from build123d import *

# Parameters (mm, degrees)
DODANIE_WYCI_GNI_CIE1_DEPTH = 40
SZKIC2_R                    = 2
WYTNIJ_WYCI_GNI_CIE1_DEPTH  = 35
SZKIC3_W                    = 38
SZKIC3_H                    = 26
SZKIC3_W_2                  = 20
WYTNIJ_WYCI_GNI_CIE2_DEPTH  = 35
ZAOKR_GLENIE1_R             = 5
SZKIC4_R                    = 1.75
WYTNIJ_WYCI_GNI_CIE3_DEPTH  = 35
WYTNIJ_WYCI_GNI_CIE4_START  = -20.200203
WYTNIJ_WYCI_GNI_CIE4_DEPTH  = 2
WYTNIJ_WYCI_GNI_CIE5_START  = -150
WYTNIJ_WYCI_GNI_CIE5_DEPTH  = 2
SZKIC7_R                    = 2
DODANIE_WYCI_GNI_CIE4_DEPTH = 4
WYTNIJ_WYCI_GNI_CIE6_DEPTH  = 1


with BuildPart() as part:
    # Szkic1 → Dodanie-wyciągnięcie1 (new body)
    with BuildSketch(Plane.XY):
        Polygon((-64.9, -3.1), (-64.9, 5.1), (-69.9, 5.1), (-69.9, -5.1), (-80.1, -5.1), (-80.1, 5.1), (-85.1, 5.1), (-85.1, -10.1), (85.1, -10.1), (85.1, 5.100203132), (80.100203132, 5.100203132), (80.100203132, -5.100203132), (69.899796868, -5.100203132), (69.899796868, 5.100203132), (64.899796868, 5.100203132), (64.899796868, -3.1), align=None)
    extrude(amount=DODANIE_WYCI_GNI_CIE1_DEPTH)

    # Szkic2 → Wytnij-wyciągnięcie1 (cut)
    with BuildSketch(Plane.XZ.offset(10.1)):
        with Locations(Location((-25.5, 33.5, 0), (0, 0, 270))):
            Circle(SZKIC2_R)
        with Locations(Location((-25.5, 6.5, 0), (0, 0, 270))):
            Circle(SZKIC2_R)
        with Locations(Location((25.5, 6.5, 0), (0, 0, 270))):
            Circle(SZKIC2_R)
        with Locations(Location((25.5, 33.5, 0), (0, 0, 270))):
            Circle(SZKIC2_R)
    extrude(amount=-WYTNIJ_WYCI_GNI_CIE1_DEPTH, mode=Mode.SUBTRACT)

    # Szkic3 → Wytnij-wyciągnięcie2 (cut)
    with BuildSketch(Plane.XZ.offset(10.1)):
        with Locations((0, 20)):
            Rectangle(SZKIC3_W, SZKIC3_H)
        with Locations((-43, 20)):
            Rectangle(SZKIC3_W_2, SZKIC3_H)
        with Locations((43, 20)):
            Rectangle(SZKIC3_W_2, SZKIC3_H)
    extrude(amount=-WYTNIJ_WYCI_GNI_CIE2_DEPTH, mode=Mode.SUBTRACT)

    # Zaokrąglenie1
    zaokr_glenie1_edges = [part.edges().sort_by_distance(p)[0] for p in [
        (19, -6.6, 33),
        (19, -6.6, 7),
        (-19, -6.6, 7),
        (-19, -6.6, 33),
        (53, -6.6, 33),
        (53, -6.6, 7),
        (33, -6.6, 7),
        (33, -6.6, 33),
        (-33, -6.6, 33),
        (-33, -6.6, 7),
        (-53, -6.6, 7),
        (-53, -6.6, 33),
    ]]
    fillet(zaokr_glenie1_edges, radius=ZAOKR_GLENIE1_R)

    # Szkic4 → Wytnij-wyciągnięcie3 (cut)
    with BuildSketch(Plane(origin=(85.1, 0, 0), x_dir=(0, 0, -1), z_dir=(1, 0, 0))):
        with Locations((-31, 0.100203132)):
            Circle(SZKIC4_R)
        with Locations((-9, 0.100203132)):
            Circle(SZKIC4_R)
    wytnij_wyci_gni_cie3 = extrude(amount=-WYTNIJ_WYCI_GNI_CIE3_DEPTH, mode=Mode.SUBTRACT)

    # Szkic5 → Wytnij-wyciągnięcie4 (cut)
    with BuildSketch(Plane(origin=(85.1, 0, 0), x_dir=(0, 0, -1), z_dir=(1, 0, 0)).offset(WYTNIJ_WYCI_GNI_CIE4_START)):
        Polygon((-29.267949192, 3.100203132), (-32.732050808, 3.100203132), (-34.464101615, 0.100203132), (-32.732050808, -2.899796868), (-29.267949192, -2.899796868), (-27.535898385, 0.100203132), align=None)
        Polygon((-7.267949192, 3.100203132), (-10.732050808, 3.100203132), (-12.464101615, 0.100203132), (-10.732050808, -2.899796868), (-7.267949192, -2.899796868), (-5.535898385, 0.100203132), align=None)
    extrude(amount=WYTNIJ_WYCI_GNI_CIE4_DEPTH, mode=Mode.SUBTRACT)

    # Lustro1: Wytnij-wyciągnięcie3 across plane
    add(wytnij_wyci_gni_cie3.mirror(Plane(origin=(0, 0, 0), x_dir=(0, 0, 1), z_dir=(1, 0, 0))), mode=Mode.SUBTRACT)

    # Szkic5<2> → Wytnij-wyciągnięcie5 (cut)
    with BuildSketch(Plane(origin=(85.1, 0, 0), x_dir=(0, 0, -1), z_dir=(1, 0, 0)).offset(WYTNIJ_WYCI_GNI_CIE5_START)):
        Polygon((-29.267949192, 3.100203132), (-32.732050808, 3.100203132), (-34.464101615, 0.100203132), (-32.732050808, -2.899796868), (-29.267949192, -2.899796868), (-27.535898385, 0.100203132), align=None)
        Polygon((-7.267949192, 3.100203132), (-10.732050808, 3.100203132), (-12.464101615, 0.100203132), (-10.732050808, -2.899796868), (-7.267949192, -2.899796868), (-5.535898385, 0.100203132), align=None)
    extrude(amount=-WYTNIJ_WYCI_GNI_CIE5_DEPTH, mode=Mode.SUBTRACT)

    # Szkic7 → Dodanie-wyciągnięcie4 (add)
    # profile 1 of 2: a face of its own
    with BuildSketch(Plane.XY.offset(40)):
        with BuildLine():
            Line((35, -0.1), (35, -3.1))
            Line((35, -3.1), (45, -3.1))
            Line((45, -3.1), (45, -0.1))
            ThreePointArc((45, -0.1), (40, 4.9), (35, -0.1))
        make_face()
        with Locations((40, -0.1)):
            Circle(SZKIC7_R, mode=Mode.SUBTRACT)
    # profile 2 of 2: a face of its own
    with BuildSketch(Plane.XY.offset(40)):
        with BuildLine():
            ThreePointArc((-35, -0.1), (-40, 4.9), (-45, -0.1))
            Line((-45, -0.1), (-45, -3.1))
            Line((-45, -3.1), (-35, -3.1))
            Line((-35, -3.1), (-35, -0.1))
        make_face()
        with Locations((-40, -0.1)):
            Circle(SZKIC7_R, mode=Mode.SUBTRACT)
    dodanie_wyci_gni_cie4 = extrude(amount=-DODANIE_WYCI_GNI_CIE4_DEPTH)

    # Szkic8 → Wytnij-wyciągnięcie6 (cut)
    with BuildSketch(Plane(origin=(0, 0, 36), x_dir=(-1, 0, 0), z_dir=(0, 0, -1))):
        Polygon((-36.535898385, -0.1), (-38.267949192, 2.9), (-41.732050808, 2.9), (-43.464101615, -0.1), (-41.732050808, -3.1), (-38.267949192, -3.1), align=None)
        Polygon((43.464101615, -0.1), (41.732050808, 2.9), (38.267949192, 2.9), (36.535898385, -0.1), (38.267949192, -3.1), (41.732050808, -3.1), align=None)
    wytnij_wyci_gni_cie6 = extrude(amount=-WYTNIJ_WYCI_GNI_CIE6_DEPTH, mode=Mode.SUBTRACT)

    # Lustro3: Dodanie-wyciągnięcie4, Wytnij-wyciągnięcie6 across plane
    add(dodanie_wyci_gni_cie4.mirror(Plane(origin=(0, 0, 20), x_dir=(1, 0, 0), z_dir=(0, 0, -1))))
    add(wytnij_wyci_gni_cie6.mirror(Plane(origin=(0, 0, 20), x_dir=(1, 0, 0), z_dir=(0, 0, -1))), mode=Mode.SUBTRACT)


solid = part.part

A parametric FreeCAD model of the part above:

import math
import FreeCAD as App
import Part
import Sketcher

V = App.Vector
Q = App.Units.Quantity


def edges_at(feature, points):
    """Names of the edges that pass closest to the given points."""
    edges = feature.Shape.Edges
    near = lambda p: min(range(len(edges)), key=lambda i: edges[i].distToShape(Part.Vertex(*p))[0])
    return sorted({f"Edge{near(p) + 1}" for p in points})

doc = App.newDocument("Part")
body = doc.addObject("PartDesign::Body", "Body")

sketch1 = body.newObject("Sketcher::SketchObject", "Sketch")
sketch1.AttachmentSupport = (doc.getObject("XY_Plane"), [""])
sketch1.MapMode = "FlatFace"
sketch1.addGeometry([
    Part.LineSegment(V(-64.9, -3.1, 0), V(-64.9, 5.1, 0)),
    Part.LineSegment(V(-64.9, 5.1, 0), V(-69.9, 5.1, 0)),
    Part.LineSegment(V(-69.9, 5.1, 0), V(-69.9, -5.1, 0)),
    Part.LineSegment(V(-69.9, -5.1, 0), V(-80.1, -5.1, 0)),
    Part.LineSegment(V(-80.1, -5.1, 0), V(-80.1, 5.1, 0)),
    Part.LineSegment(V(-80.1, 5.1, 0), V(-85.1, 5.1, 0)),
    Part.LineSegment(V(-85.1, 5.1, 0), V(-85.1, -10.1, 0)),
    Part.LineSegment(V(-85.1, -10.1, 0), V(85.1, -10.1, 0)),
    Part.LineSegment(V(85.1, -10.1, 0), V(85.1, 5.1, 0)),
    Part.LineSegment(V(85.1, 5.1, 0), V(80.1, 5.1, 0)),
    Part.LineSegment(V(80.1, 5.1, 0), V(80.1, -5.1, 0)),
    Part.LineSegment(V(80.1, -5.1, 0), V(69.9, -5.1, 0)),
    Part.LineSegment(V(69.9, -5.1, 0), V(69.9, 5.1, 0)),
    Part.LineSegment(V(69.9, 5.1, 0), V(64.9, 5.1, 0)),
    Part.LineSegment(V(64.9, 5.1, 0), V(64.9, -3.1, 0)),
    Part.LineSegment(V(64.9, -3.1, 0), V(-64.9, -3.1, 0)),
], False)
sketch1.addConstraint([
    Sketcher.Constraint("Coincident", 0, 2, 1, 1),
    Sketcher.Constraint("Coincident", 1, 2, 2, 1),
    Sketcher.Constraint("Coincident", 2, 2, 3, 1),
    Sketcher.Constraint("Coincident", 3, 2, 4, 1),
    Sketcher.Constraint("Coincident", 4, 2, 5, 1),
    Sketcher.Constraint("Coincident", 5, 2, 6, 1),
    Sketcher.Constraint("Coincident", 6, 2, 7, 1),
    Sketcher.Constraint("Coincident", 7, 2, 8, 1),
    Sketcher.Constraint("Coincident", 8, 2, 9, 1),
    Sketcher.Constraint("Coincident", 9, 2, 10, 1),
    Sketcher.Constraint("Coincident", 10, 2, 11, 1),
    Sketcher.Constraint("Coincident", 11, 2, 12, 1),
    Sketcher.Constraint("Coincident", 12, 2, 13, 1),
    Sketcher.Constraint("Coincident", 13, 2, 14, 1),
    Sketcher.Constraint("Coincident", 14, 2, 15, 1),
    Sketcher.Constraint("Coincident", 15, 2, 0, 1),
    Sketcher.Constraint("Vertical", 0),
    Sketcher.Constraint("Horizontal", 1),
    Sketcher.Constraint("Vertical", 2),
    Sketcher.Constraint("Horizontal", 3),
    Sketcher.Constraint("Vertical", 4),
    Sketcher.Constraint("Horizontal", 5),
    Sketcher.Constraint("Vertical", 6),
    Sketcher.Constraint("Horizontal", 7),
    Sketcher.Constraint("Vertical", 8),
    Sketcher.Constraint("Horizontal", 9),
    Sketcher.Constraint("Vertical", 10),
    Sketcher.Constraint("Horizontal", 11),
    Sketcher.Constraint("Vertical", 12),
    Sketcher.Constraint("Horizontal", 13),
    Sketcher.Constraint("Vertical", 14),
    Sketcher.Constraint("Horizontal", 15),
    Sketcher.Constraint("Horizontal", 1, 2, 4, 2),
    Sketcher.Constraint("Horizontal", 9, 2, 12, 2),
    Sketcher.Constraint("Equal", 1, 5),
    Sketcher.Constraint("Equal", 5, 13),
    Sketcher.Constraint("Equal", 3, 2),
    Sketcher.Constraint("Equal", 11, 10),
    Sketcher.Constraint("DistanceX", 1, 2, 1, 1, 5.0),
    Sketcher.Constraint("DistanceX", 3, 2, 3, 1, 10.2),
    Sketcher.Constraint("DistanceX", 7, 1, 7, 2, 170.2),
    Sketcher.Constraint("DistanceY", 0, 1, 0, 2, 8.2),
    Sketcher.Constraint("DistanceY", 6, 2, 6, 1, 15.2),
    Sketcher.Constraint("DistanceX", 0, 2, -1, 1, 64.9),
    Sketcher.Constraint("DistanceY", -1, 1, 0, 2, 5.1),
    Sketcher.Constraint("DistanceX", 9, 2, 9, 1, 4.999797),
    Sketcher.Constraint("DistanceX", 11, 2, 11, 1, 10.200406),
    Sketcher.Constraint("DistanceY", 8, 1, 8, 2, 15.200203),
])
pad1 = body.newObject("PartDesign::Pad", "Pad")
pad1.Profile = sketch1
pad1.Length = 40

sketch2 = body.newObject("Sketcher::SketchObject", "Sketch001")
sketch2.AttachmentSupport = (doc.getObject("XZ_Plane"), [""])
sketch2.MapMode = "FlatFace"
sketch2.AttachmentOffset = App.Placement(V(0, 0, 10.1), App.Rotation())
sketch2.addGeometry([
    Part.Circle(V(-25.5, 33.5, 0), V(0, 0, 1), 2),
    Part.Circle(V(-25.5, 6.5, 0), V(0, 0, 1), 2),
    Part.Circle(V(25.5, 6.5, 0), V(0, 0, 1), 2),
    Part.Circle(V(25.5, 33.5, 0), V(0, 0, 1), 2),
], False)
sketch2.addConstraint([
    Sketcher.Constraint("Equal", 0, 1),
    Sketcher.Constraint("Equal", 1, 2),
    Sketcher.Constraint("Equal", 2, 3),
    Sketcher.Constraint("Symmetric", 1, 3, 2, 3, -2),
    Sketcher.Constraint("Symmetric", 0, 3, 3, 3, -2),
    Sketcher.Constraint("Vertical", 0, 3, 1, 3),
    Sketcher.Constraint("Diameter", 0, 4.0),
    Sketcher.Constraint("DistanceY", 1, 3, 0, 3, 27.0),
    Sketcher.Constraint("DistanceX", 1, 3, 2, 3, 51.0),
    Sketcher.Constraint("DistanceY", -1, 1, 0, 3, 33.5),
])
pocket1 = body.newObject("PartDesign::Pocket", "Pocket")
pocket1.Profile = sketch2
pocket1.Length = 35

sketch3 = body.newObject("Sketcher::SketchObject", "Sketch002")
sketch3.AttachmentSupport = (doc.getObject("XZ_Plane"), [""])
sketch3.MapMode = "FlatFace"
sketch3.AttachmentOffset = App.Placement(V(0, 0, 10.1), App.Rotation())
sketch3.addGeometry([
    Part.LineSegment(V(-19, 33, 0), V(-19, 7, 0)),
    Part.LineSegment(V(-19, 7, 0), V(19, 7, 0)),
    Part.LineSegment(V(19, 7, 0), V(19, 33, 0)),
    Part.LineSegment(V(19, 33, 0), V(-19, 33, 0)),
    Part.LineSegment(V(-53, 33, 0), V(-53, 7, 0)),
    Part.LineSegment(V(-53, 7, 0), V(-33, 7, 0)),
    Part.LineSegment(V(-33, 7, 0), V(-33, 33, 0)),
    Part.LineSegment(V(-33, 33, 0), V(-53, 33, 0)),
    Part.LineSegment(V(33, 33, 0), V(33, 7, 0)),
    Part.LineSegment(V(33, 7, 0), V(53, 7, 0)),
    Part.LineSegment(V(53, 7, 0), V(53, 33, 0)),
    Part.LineSegment(V(53, 33, 0), V(33, 33, 0)),
], False)
sketch3.addConstraint([
    Sketcher.Constraint("Coincident", 0, 2, 1, 1),
    Sketcher.Constraint("Coincident", 1, 2, 2, 1),
    Sketcher.Constraint("Coincident", 2, 2, 3, 1),
    Sketcher.Constraint("Coincident", 3, 2, 0, 1),
    Sketcher.Constraint("Coincident", 4, 2, 5, 1),
    Sketcher.Constraint("Coincident", 5, 2, 6, 1),
    Sketcher.Constraint("Coincident", 6, 2, 7, 1),
    Sketcher.Constraint("Coincident", 7, 2, 4, 1),
    Sketcher.Constraint("Coincident", 8, 2, 9, 1),
    Sketcher.Constraint("Coincident", 9, 2, 10, 1),
    Sketcher.Constraint("Coincident", 10, 2, 11, 1),
    Sketcher.Constraint("Coincident", 11, 2, 8, 1),
    Sketcher.Constraint("Vertical", 0),
    Sketcher.Constraint("Horizontal", 1),
    Sketcher.Constraint("Vertical", 2),
    Sketcher.Constraint("Horizontal", 3),
    Sketcher.Constraint("Vertical", 4),
    Sketcher.Constraint("Horizontal", 5),
    Sketcher.Constraint("Vertical", 6),
    Sketcher.Constraint("Horizontal", 7),
    Sketcher.Constraint("Vertical", 8),
    Sketcher.Constraint("Horizontal", 9),
    Sketcher.Constraint("Vertical", 10),
    Sketcher.Constraint("Horizontal", 11),
    Sketcher.Constraint("Symmetric", 5, 2, 8, 2, -2),
    Sketcher.Constraint("Symmetric", 7, 2, 10, 2, -2),
    Sketcher.Constraint("Horizontal", 1, 2, 4, 2),
    Sketcher.Constraint("Horizontal", 3, 2, 6, 2),
    Sketcher.Constraint("DistanceX", 1, 1, 1, 2, 38.0),
    Sketcher.Constraint("DistanceX", 5, 1, 5, 2, 20.0),
    Sketcher.Constraint("DistanceY", 0, 2, 0, 1, 26.0),
    Sketcher.Constraint("DistanceX", 0, 2, -1, 1, 19.0),
    Sketcher.Constraint("DistanceY", -1, 1, 0, 2, 7.0),
    Sketcher.Constraint("DistanceX", 4, 2, -1, 1, 53.0),
])
pocket2 = body.newObject("PartDesign::Pocket", "Pocket001")
pocket2.Profile = sketch3
pocket2.Length = 35
doc.recompute()

fillet = body.newObject("PartDesign::Fillet", "Fillet")
fillet.Base = (pocket2, edges_at(pocket2, [
    (19, -6.6, 33),
    (19, -6.6, 7),
    (-19, -6.6, 7),
    (-19, -6.6, 33),
    (53, -6.6, 33),
    (53, -6.6, 7),
    (33, -6.6, 7),
    (33, -6.6, 33),
    (-33, -6.6, 33),
    (-33, -6.6, 7),
    (-53, -6.6, 7),
    (-53, -6.6, 33),
]))
fillet.Radius = 5

sketch4 = body.newObject("Sketcher::SketchObject", "Sketch003")
sketch4.AttachmentSupport = (doc.getObject("YZ_Plane"), [""])
sketch4.MapMode = "FlatFace"
sketch4.AttachmentOffset = App.Placement(V(0, 0, 85.1), App.Rotation())
sketch4.addGeometry([
    Part.Circle(V(0.1, 31, 0), V(0, 0, 1), 1.8),
    Part.Circle(V(0.1, 9, 0), V(0, 0, 1), 1.8),
], False)
sketch4.addConstraint([
    Sketcher.Constraint("Equal", 0, 1),
    Sketcher.Constraint("Vertical", 0, 3, 1, 3),
    Sketcher.Constraint("Diameter", 0, 3.5),
    Sketcher.Constraint("DistanceY", -1, 1, 0, 3, 31.0),
    Sketcher.Constraint("DistanceY", -1, 1, 1, 3, 9.0),
    Sketcher.Constraint("DistanceX", -1, 1, 0, 3, 0.100203),
])
pocket3 = body.newObject("PartDesign::Pocket", "Pocket002")
pocket3.Profile = sketch4
pocket3.Length = 35

sketch5 = body.newObject("Sketcher::SketchObject", "Sketch004")
sketch5.AttachmentSupport = (doc.getObject("YZ_Plane"), [""])
sketch5.MapMode = "FlatFace"
sketch5.AttachmentOffset = App.Placement(V(0, 0, 64.899797), App.Rotation())
sketch5.addGeometry([
    Part.LineSegment(V(3.1, 29.3, 0), V(3.1, 32.7, 0)),
    Part.LineSegment(V(3.1, 32.7, 0), V(0.1, 34.5, 0)),
    Part.LineSegment(V(0.1, 34.5, 0), V(-2.9, 32.7, 0)),
    Part.LineSegment(V(-2.9, 32.7, 0), V(-2.9, 29.3, 0)),
    Part.LineSegment(V(-2.9, 29.3, 0), V(0.1, 27.5, 0)),
    Part.LineSegment(V(0.1, 27.5, 0), V(3.1, 29.3, 0)),
    Part.LineSegment(V(3.1, 7.3, 0), V(3.1, 10.7, 0)),
    Part.LineSegment(V(3.1, 10.7, 0), V(0.1, 12.5, 0)),
    Part.LineSegment(V(0.1, 12.5, 0), V(-2.9, 10.7, 0)),
    Part.LineSegment(V(-2.9, 10.7, 0), V(-2.9, 7.3, 0)),
    Part.LineSegment(V(-2.9, 7.3, 0), V(0.1, 5.5, 0)),
    Part.LineSegment(V(0.1, 5.5, 0), V(3.1, 7.3, 0)),
], False)
sketch5.addConstraint([
    Sketcher.Constraint("Coincident", 0, 2, 1, 1),
    Sketcher.Constraint("Coincident", 1, 2, 2, 1),
    Sketcher.Constraint("Coincident", 2, 2, 3, 1),
    Sketcher.Constraint("Coincident", 3, 2, 4, 1),
    Sketcher.Constraint("Coincident", 4, 2, 5, 1),
    Sketcher.Constraint("Coincident", 5, 2, 0, 1),
    Sketcher.Constraint("Coincident", 6, 2, 7, 1),
    Sketcher.Constraint("Coincident", 7, 2, 8, 1),
    Sketcher.Constraint("Coincident", 8, 2, 9, 1),
    Sketcher.Constraint("Coincident", 9, 2, 10, 1),
    Sketcher.Constraint("Coincident", 10, 2, 11, 1),
    Sketcher.Constraint("Coincident", 11, 2, 6, 1),
    Sketcher.Constraint("Vertical", 0),
    Sketcher.Constraint("Vertical", 3),
    Sketcher.Constraint("Vertical", 6),
    Sketcher.Constraint("Vertical", 9),
    Sketcher.Constraint("Parallel", 1, 4),
    Sketcher.Constraint("Parallel", 2, 5),
    Sketcher.Constraint("Parallel", 4, 7),
    Sketcher.Constraint("Parallel", 5, 8),
    Sketcher.Constraint("Parallel", 7, 10),
    Sketcher.Constraint("Parallel", 8, 11),
    Sketcher.Constraint("Horizontal", 0, 2, 2, 2),
    Sketcher.Constraint("Horizontal", 3, 2, 5, 2),
    Sketcher.Constraint("Horizontal", 6, 2, 8, 2),
    Sketcher.Constraint("Horizontal", 9, 2, 11, 2),
    Sketcher.Constraint("Vertical", 1, 2, 4, 2),
    Sketcher.Constraint("Vertical", 5, 2, 6, 2),
    Sketcher.Constraint("Vertical", 4, 2, 7, 2),
    Sketcher.Constraint("Equal", 3, 6),
    Sketcher.Constraint("Angle", 1, Q("150 deg")),
    Sketcher.Constraint("DistanceX", 1, 2, 0, 2, 3.0),
    Sketcher.Constraint("DistanceY", 6, 2, 0, 2, 22.0),
    Sketcher.Constraint("DistanceY", 0, 1, 0, 2, 3.464102),
    Sketcher.Constraint("DistanceY", -1, 1, 1, 2, 34.464102),
    Sketcher.Constraint("DistanceX", -1, 1, 0, 2, 3.100203),
])
pocket4 = body.newObject("PartDesign::Pocket", "Pocket003")
pocket4.Profile = sketch5
pocket4.Length = 2
pocket4.Reversed = True
doc.recompute()

mirrored = body.newObject("PartDesign::Mirrored", "Mirrored")
mirrored.Originals = [pocket3]
mirrored.MirrorPlane = (doc.getObject("YZ_Plane"), [""])
body.Tip = mirrored

sketch6 = body.newObject("Sketcher::SketchObject", "Sketch005")
sketch6.AttachmentSupport = (doc.getObject("YZ_Plane"), [""])
sketch6.MapMode = "FlatFace"
sketch6.AttachmentOffset = App.Placement(V(0, 0, -64.9), App.Rotation())
sketch6.addGeometry([
    Part.LineSegment(V(3.1, 29.3, 0), V(3.1, 32.7, 0)),
    Part.LineSegment(V(3.1, 32.7, 0), V(0.1, 34.5, 0)),
    Part.LineSegment(V(0.1, 34.5, 0), V(-2.9, 32.7, 0)),
    Part.LineSegment(V(-2.9, 32.7, 0), V(-2.9, 29.3, 0)),
    Part.LineSegment(V(-2.9, 29.3, 0), V(0.1, 27.5, 0)),
    Part.LineSegment(V(0.1, 27.5, 0), V(3.1, 29.3, 0)),
    Part.LineSegment(V(3.1, 7.3, 0), V(3.1, 10.7, 0)),
    Part.LineSegment(V(3.1, 10.7, 0), V(0.1, 12.5, 0)),
    Part.LineSegment(V(0.1, 12.5, 0), V(-2.9, 10.7, 0)),
    Part.LineSegment(V(-2.9, 10.7, 0), V(-2.9, 7.3, 0)),
    Part.LineSegment(V(-2.9, 7.3, 0), V(0.1, 5.5, 0)),
    Part.LineSegment(V(0.1, 5.5, 0), V(3.1, 7.3, 0)),
], False)
sketch6.addConstraint([
    Sketcher.Constraint("Coincident", 0, 2, 1, 1),
    Sketcher.Constraint("Coincident", 1, 2, 2, 1),
    Sketcher.Constraint("Coincident", 2, 2, 3, 1),
    Sketcher.Constraint("Coincident", 3, 2, 4, 1),
    Sketcher.Constraint("Coincident", 4, 2, 5, 1),
    Sketcher.Constraint("Coincident", 5, 2, 0, 1),
    Sketcher.Constraint("Coincident", 6, 2, 7, 1),
    Sketcher.Constraint("Coincident", 7, 2, 8, 1),
    Sketcher.Constraint("Coincident", 8, 2, 9, 1),
    Sketcher.Constraint("Coincident", 9, 2, 10, 1),
    Sketcher.Constraint("Coincident", 10, 2, 11, 1),
    Sketcher.Constraint("Coincident", 11, 2, 6, 1),
    Sketcher.Constraint("Vertical", 0),
    Sketcher.Constraint("Vertical", 3),
    Sketcher.Constraint("Vertical", 6),
    Sketcher.Constraint("Vertical", 9),
    Sketcher.Constraint("Parallel", 1, 4),
    Sketcher.Constraint("Parallel", 2, 5),
    Sketcher.Constraint("Parallel", 4, 7),
    Sketcher.Constraint("Parallel", 5, 8),
    Sketcher.Constraint("Parallel", 7, 10),
    Sketcher.Constraint("Parallel", 8, 11),
    Sketcher.Constraint("Horizontal", 0, 2, 2, 2),
    Sketcher.Constraint("Horizontal", 3, 2, 5, 2),
    Sketcher.Constraint("Horizontal", 6, 2, 8, 2),
    Sketcher.Constraint("Horizontal", 9, 2, 11, 2),
    Sketcher.Constraint("Vertical", 1, 2, 4, 2),
    Sketcher.Constraint("Vertical", 5, 2, 6, 2),
    Sketcher.Constraint("Vertical", 4, 2, 7, 2),
    Sketcher.Constraint("Equal", 3, 6),
    Sketcher.Constraint("Angle", 1, Q("150 deg")),
    Sketcher.Constraint("DistanceX", 1, 2, 0, 2, 3.0),
    Sketcher.Constraint("DistanceY", 6, 2, 0, 2, 22.0),
    Sketcher.Constraint("DistanceY", 0, 1, 0, 2, 3.464102),
    Sketcher.Constraint("DistanceY", -1, 1, 1, 2, 34.464102),
    Sketcher.Constraint("DistanceX", -1, 1, 0, 2, 3.100203),
])
pocket5 = body.newObject("PartDesign::Pocket", "Pocket004")
pocket5.Profile = sketch6
pocket5.Length = 2

sketch7 = body.newObject("Sketcher::SketchObject", "Sketch006")
sketch7.AttachmentSupport = (doc.getObject("XY_Plane"), [""])
sketch7.MapMode = "FlatFace"
sketch7.AttachmentOffset = App.Placement(V(0, 0, 40), App.Rotation())
sketch7.addGeometry([
    Part.LineSegment(V(35, -0.1, 0), V(35, -3.1, 0)),
    Part.LineSegment(V(35, -3.1, 0), V(45, -3.1, 0)),
    Part.LineSegment(V(45, -3.1, 0), V(45, -0.1, 0)),
    Part.ArcOfCircle(Part.Circle(V(40, -0.1, 0), V(0, 0, 1), 5), math.radians(0), math.radians(180)),
    Part.Circle(V(40, -0.1, 0), V(0, 0, 1), 2),
    Part.ArcOfCircle(Part.Circle(V(-40, -0.1, 0), V(0, 0, 1), 5), math.radians(0), math.radians(180)),
    Part.LineSegment(V(-45, -0.1, 0), V(-45, -3.1, 0)),
    Part.LineSegment(V(-45, -3.1, 0), V(-35, -3.1, 0)),
    Part.LineSegment(V(-35, -3.1, 0), V(-35, -0.1, 0)),
    Part.Circle(V(-40, -0.1, 0), V(0, 0, 1), 2),
], False)
sketch7.addConstraint([
    Sketcher.Constraint("Coincident", 0, 2, 1, 1),
    Sketcher.Constraint("Coincident", 1, 2, 2, 1),
    Sketcher.Constraint("Tangent", 2, 2, 3, 1),
    Sketcher.Constraint("Tangent", 3, 2, 0, 1),
    Sketcher.Constraint("Tangent", 5, 2, 6, 1),
    Sketcher.Constraint("Coincident", 6, 2, 7, 1),
    Sketcher.Constraint("Coincident", 7, 2, 8, 1),
    Sketcher.Constraint("Tangent", 8, 2, 5, 1),
    Sketcher.Constraint("Vertical", 0),
    Sketcher.Constraint("Horizontal", 1),
    Sketcher.Constraint("Vertical", 2),
    Sketcher.Constraint("Vertical", 6),
    Sketcher.Constraint("Horizontal", 7),
    Sketcher.Constraint("Vertical", 8),
    Sketcher.Constraint("Coincident", 4, 3, 3, 3),
    Sketcher.Constraint("Coincident", 9, 3, 5, 3),
    Sketcher.Constraint("Equal", 3, 5),
    Sketcher.Constraint("Equal", 4, 9),
    Sketcher.Constraint("Symmetric", 3, 3, 5, 3, -2),
    Sketcher.Constraint("Horizontal", 1, 2, 6, 2),
    Sketcher.Constraint("Diameter", 4, 4.0),
    Sketcher.Constraint("Radius", 3, 5.0),
    Sketcher.Constraint("DistanceY", 0, 2, 0, 1, 3.0),
    Sketcher.Constraint("DistanceX", -1, 1, 3, 3, 40.0),
    Sketcher.Constraint("DistanceY", 3, 3, -1, 1, 0.1),
])
pad2 = body.newObject("PartDesign::Pad", "Pad001")
pad2.Profile = sketch7
pad2.Length = 4
pad2.Reversed = True

sketch8 = body.newObject("Sketcher::SketchObject", "Sketch007")
sketch8.AttachmentSupport = (doc.getObject("XY_Plane"), [""])
sketch8.MapMode = "FlatFace"
sketch8.AttachmentOffset = App.Placement(V(0, 0, 36), App.Rotation())
sketch8.addGeometry([
    Part.LineSegment(V(36.5, -0.1, 0), V(38.3, 2.9, 0)),
    Part.LineSegment(V(38.3, 2.9, 0), V(41.7, 2.9, 0)),
    Part.LineSegment(V(41.7, 2.9, 0), V(43.5, -0.1, 0)),
    Part.LineSegment(V(43.5, -0.1, 0), V(41.7, -3.1, 0)),
    Part.LineSegment(V(41.7, -3.1, 0), V(38.3, -3.1, 0)),
    Part.LineSegment(V(38.3, -3.1, 0), V(36.5, -0.1, 0)),
    Part.LineSegment(V(-43.5, -0.1, 0), V(-41.7, 2.9, 0)),
    Part.LineSegment(V(-41.7, 2.9, 0), V(-38.3, 2.9, 0)),
    Part.LineSegment(V(-38.3, 2.9, 0), V(-36.5, -0.1, 0)),
    Part.LineSegment(V(-36.5, -0.1, 0), V(-38.3, -3.1, 0)),
    Part.LineSegment(V(-38.3, -3.1, 0), V(-41.7, -3.1, 0)),
    Part.LineSegment(V(-41.7, -3.1, 0), V(-43.5, -0.1, 0)),
], False)
sketch8.addConstraint([
    Sketcher.Constraint("Coincident", 0, 2, 1, 1),
    Sketcher.Constraint("Coincident", 1, 2, 2, 1),
    Sketcher.Constraint("Coincident", 2, 2, 3, 1),
    Sketcher.Constraint("Coincident", 3, 2, 4, 1),
    Sketcher.Constraint("Coincident", 4, 2, 5, 1),
    Sketcher.Constraint("Coincident", 5, 2, 0, 1),
    Sketcher.Constraint("Coincident", 6, 2, 7, 1),
    Sketcher.Constraint("Coincident", 7, 2, 8, 1),
    Sketcher.Constraint("Coincident", 8, 2, 9, 1),
    Sketcher.Constraint("Coincident", 9, 2, 10, 1),
    Sketcher.Constraint("Coincident", 10, 2, 11, 1),
    Sketcher.Constraint("Coincident", 11, 2, 6, 1),
    Sketcher.Constraint("Horizontal", 1),
    Sketcher.Constraint("Horizontal", 4),
    Sketcher.Constraint("Horizontal", 7),
    Sketcher.Constraint("Horizontal", 10),
    Sketcher.Constraint("Symmetric", 1, 2, 6, 2, -2),
    Sketcher.Constraint("Symmetric", 5, 2, 8, 2, -2),
    Sketcher.Constraint("Symmetric", 4, 2, 9, 2, -2),
    Sketcher.Constraint("Symmetric", 2, 2, 11, 2, -2),
    Sketcher.Constraint("Parallel", 0, 3),
    Sketcher.Constraint("Parallel", 2, 5),
    Sketcher.Constraint("Parallel", 3, 6),
    Sketcher.Constraint("Parallel", 5, 8),
    Sketcher.Constraint("Parallel", 8, 11),
    Sketcher.Constraint("Horizontal", 2, 2, 5, 2),
    Sketcher.Constraint("Vertical", 1, 2, 3, 2),
    Sketcher.Constraint("Angle", 0, Q("60 deg")),
    Sketcher.Constraint("DistanceY", 2, 2, 1, 2, 3.0),
    Sketcher.Constraint("DistanceX", 6, 2, 0, 2, 80.0),
    Sketcher.Constraint("DistanceY", -1, 1, 0, 2, 2.9),
    Sketcher.Constraint("DistanceX", 1, 1, 1, 2, 3.464102),
])
pocket6 = body.newObject("PartDesign::Pocket", "Pocket005")
pocket6.Profile = sketch8
pocket6.Length = 1
pocket6.Reversed = True
doc.recompute()

datumplane = body.newObject("PartDesign::Plane", "DatumPlane")
datumplane.AttachmentSupport = (doc.getObject("XY_Plane"), [""])
datumplane.MapMode = "FlatFace"
datumplane.AttachmentOffset = App.Placement(V(0, 0, 20), App.Rotation())
mirrored2 = body.newObject("PartDesign::Mirrored", "Mirrored001")
mirrored2.Originals = [pad2, pocket6]
mirrored2.MirrorPlane = (datumplane, [""])
body.Tip = mirrored2

doc.recompute()
